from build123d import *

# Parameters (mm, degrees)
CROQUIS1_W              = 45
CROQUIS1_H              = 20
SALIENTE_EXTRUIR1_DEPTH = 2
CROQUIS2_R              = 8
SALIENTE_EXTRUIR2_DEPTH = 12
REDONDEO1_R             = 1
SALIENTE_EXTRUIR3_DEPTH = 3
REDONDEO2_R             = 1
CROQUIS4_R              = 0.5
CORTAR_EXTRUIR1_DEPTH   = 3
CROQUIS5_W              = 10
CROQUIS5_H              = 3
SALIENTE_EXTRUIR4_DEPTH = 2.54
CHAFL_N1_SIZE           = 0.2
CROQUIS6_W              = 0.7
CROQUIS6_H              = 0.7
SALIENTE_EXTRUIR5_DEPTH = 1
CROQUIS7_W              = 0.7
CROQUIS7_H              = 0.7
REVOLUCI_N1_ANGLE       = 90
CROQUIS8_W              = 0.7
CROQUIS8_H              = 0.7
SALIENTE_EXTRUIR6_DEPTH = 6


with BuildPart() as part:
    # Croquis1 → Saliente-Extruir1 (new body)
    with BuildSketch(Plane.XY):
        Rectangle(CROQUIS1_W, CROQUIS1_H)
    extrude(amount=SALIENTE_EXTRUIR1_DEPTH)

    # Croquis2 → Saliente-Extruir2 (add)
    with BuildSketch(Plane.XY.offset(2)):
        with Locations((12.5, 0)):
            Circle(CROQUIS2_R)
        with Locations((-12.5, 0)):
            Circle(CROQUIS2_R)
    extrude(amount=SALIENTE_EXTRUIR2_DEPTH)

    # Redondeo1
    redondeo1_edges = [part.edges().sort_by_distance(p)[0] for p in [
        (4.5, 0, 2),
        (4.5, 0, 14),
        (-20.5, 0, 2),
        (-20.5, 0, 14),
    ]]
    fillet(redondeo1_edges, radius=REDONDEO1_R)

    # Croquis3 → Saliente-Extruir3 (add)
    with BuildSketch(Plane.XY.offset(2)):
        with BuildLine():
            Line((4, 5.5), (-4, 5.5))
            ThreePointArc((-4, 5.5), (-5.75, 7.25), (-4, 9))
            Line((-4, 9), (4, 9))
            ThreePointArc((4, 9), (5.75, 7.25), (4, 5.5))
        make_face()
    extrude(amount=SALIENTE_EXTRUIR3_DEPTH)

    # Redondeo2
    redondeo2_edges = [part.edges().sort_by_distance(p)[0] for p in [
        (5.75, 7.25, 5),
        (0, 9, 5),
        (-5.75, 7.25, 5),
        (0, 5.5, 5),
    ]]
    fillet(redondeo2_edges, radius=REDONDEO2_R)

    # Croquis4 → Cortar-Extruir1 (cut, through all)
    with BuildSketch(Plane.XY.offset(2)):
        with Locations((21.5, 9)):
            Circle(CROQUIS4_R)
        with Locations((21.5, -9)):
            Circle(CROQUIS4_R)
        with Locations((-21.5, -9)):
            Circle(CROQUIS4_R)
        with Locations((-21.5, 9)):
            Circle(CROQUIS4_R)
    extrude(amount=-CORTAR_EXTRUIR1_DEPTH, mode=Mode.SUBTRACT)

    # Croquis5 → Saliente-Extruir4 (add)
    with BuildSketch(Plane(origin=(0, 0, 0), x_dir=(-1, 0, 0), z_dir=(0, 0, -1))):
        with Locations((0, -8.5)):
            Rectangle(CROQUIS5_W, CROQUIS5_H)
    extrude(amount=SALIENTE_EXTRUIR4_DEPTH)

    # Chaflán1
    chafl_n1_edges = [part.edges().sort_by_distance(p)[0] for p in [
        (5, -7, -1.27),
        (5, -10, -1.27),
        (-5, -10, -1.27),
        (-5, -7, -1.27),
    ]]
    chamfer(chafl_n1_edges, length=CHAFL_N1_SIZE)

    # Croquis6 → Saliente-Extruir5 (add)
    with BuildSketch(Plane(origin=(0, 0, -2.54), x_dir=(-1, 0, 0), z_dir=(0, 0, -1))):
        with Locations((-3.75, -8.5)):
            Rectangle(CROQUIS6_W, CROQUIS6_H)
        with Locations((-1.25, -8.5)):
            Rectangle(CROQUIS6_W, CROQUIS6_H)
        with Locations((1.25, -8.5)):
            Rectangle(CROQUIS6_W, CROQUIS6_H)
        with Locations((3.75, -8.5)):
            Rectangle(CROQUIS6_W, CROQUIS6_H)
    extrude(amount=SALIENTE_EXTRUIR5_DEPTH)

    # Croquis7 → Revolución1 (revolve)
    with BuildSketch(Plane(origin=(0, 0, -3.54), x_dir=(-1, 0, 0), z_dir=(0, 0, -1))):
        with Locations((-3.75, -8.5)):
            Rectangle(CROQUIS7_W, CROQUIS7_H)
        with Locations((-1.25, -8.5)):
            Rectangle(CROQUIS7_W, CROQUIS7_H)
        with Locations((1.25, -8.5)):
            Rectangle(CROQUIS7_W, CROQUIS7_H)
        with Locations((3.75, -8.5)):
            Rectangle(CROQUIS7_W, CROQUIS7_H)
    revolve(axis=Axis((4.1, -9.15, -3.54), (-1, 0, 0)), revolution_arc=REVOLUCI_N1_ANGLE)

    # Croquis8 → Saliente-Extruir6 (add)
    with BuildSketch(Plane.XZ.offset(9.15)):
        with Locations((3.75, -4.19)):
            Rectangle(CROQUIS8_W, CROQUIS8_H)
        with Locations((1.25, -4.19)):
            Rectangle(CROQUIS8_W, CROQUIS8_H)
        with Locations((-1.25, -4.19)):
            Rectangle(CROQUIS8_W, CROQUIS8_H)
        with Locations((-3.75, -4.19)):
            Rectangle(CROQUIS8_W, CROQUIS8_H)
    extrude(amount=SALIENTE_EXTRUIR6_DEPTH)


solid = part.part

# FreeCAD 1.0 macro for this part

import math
import FreeCAD as App
import Part
import Sketcher


def edges_at(feature, points):
    """Names of the edges that pass closest to the given points."""
    edges = feature.Shape.Edges
    near = lambda p: min(range(len(edges)), key=lambda i: edges[i].distToShape(Part.Vertex(*p))[0])
    return sorted({f"Edge{near(p) + 1}" for p in points})

doc = App.newDocument("Part")
body = doc.addObject("PartDesign::Body", "Body")

# Sketch on XY plane
sketch1 = doc.addObject("Sketcher::SketchObject", "Sketch")
body.addObject(sketch1)
sketch1.AttachmentSupport = (doc.XY_Plane, [""])
sketch1.MapMode = "FlatFace"
sketch1.addGeometry([
    Part.LineSegment(App.Vector(-22.5, 10, 0), App.Vector(-22.5, -10, 0)),
    Part.LineSegment(App.Vector(-22.5, -10, 0), App.Vector(22.5, -10, 0)),
    Part.LineSegment(App.Vector(22.5, -10, 0), App.Vector(22.5, 10, 0)),
    Part.LineSegment(App.Vector(22.5, 10, 0), App.Vector(-22.5, 10, 0)),
], False)
sketch1.addConstraint([
    Sketcher.Constraint("Coincident", 0, 2, 1, 1),
    Sketcher.Constraint("Coincident", 1, 2, 2, 1),
    Sketcher.Constraint("Coincident", 2, 2, 3, 1),
    Sketcher.Constraint("Coincident", 3, 2, 0, 1),
    Sketcher.Constraint("Vertical", 0),
    Sketcher.Constraint("Horizontal", 1),
    Sketcher.Constraint("Vertical", 2),
    Sketcher.Constraint("Horizontal", 3),
    Sketcher.Constraint("Symmetric", 0, 2, 2, 2, -1, 1),
    Sketcher.Constraint("DistanceX", 1, 1, 1, 2, 45.0),
    Sketcher.Constraint("DistanceY", 0, 2, 0, 1, 20.0),
])
pad1 = doc.addObject("PartDesign::Pad", "Pad")
body.addObject(pad1)
pad1.Profile = sketch1
pad1.Length = 2

# Sketch on XY plane
sketch2 = doc.addObject("Sketcher::SketchObject", "Sketch001")
body.addObject(sketch2)
sketch2.AttachmentSupport = (doc.XY_Plane, [""])
sketch2.MapMode = "FlatFace"
sketch2.AttachmentOffset = App.Placement(App.Vector(0, 0, 2), App.Rotation())
sketch2.addGeometry([
    Part.Circle(App.Vector(12.5, 0, 0), App.Vector(0, 0, 1), 8),
    Part.Circle(App.Vector(-12.5, 0, 0), App.Vector(0, 0, 1), 8),
], False)
sketch2.addConstraint([
    Sketcher.Constraint("Equal", 0, 1),
    Sketcher.Constraint("Symmetric", 0, 3, 1, 3, -1, 1),
    Sketcher.Constraint("PointOnObject", 0, 3, -1),
    Sketcher.Constraint("Diameter", 0, 16.0),
    Sketcher.Constraint("DistanceX", 1, 3, 0, 3, 25.0),
])
pad2 = doc.addObject("PartDesign::Pad", "Pad001")
body.addObject(pad2)
pad2.Profile = sketch2
pad2.Length = 12
doc.recompute()

fillet = doc.addObject("PartDesign::Fillet", "Fillet")
body.addObject(fillet)
fillet.Base = (pad2, edges_at(pad2, [
    (4.5, 0, 2),
    (4.5, 0, 14),
    (-20.5, 0, 2),
    (-20.5, 0, 14),
]))
fillet.Radius = 1

# Sketch on XY plane
sketch3 = doc.addObject("Sketcher::SketchObject", "Sketch002")
body.addObject(sketch3)
sketch3.AttachmentSupport = (doc.XY_Plane, [""])
sketch3.MapMode = "FlatFace"
sketch3.AttachmentOffset = App.Placement(App.Vector(0, 0, 2), App.Rotation())
sketch3.addGeometry([
    Part.LineSegment(App.Vector(-4, 5.5, 0), App.Vector(4, 5.5, 0)),
    Part.ArcOfCircle(Part.Circle(App.Vector(4, 7.25, 0), App.Vector(0, 0, 1), 1.75), math.radians(-90), math.radians(90)),
    Part.LineSegment(App.Vector(4, 9, 0), App.Vector(-4, 9, 0)),
    Part.ArcOfCircle(Part.Circle(App.Vector(-4, 7.25, 0), App.Vector(0, 0, 1), 1.75), math.radians(90), math.radians(270)),
], False)
sketch3.addConstraint([
    Sketcher.Constraint("Tangent", 0, 2, 1, 1),
    Sketcher.Constraint("Tangent", 1, 2, 2, 1),
    Sketcher.Constraint("Tangent", 2, 2, 3, 1),
    Sketcher.Constraint("Tangent", 3, 2, 0, 1),
    Sketcher.Constraint("Horizontal", 0),
    Sketcher.Constraint("Horizontal", 2),
    Sketcher.Constraint("DistanceX", 0, 1, 0, 2, 8.0),
    Sketcher.Constraint("Radius", 1, 1.75),
    Sketcher.Constraint("DistanceX", -1, 1, 1, 3, 4.0),
    Sketcher.Constraint("DistanceY", -1, 1, 1, 2, 9.0),
])
pad3 = doc.addObject("PartDesign::Pad", "Pad002")
body.addObject(pad3)
pad3.Profile = sketch3
pad3.Length = 3
doc.recompute()

fillet2 = doc.addObject("PartDesign::Fillet", "Fillet001")
body.addObject(fillet2)
fillet2.Base = (pad3, edges_at(pad3, [
    (5.75, 7.25, 5),
    (0, 9, 5),
    (-5.75, 7.25, 5),
    (0, 5.5, 5),
]))
fillet2.Radius = 1

# Sketch on XY plane
sketch4 = doc.addObject("Sketcher::SketchObject", "Sketch003")
body.addObject(sketch4)
sketch4.AttachmentSupport = (doc.XY_Plane, [""])
sketch4.MapMode = "FlatFace"
sketch4.AttachmentOffset = App.Placement(App.Vector(0, 0, 2), App.Rotation())
sketch4.addGeometry([
    Part.Circle(App.Vector(21.5, 9, 0), App.Vector(0, 0, 1), 0.5),
    Part.Circle(App.Vector(21.5, -9, 0), App.Vector(0, 0, 1), 0.5),
    Part.Circle(App.Vector(-21.5, -9, 0), App.Vector(0, 0, 1), 0.5),
    Part.Circle(App.Vector(-21.5, 9, 0), App.Vector(0, 0, 1), 0.5),
], False)
sketch4.addConstraint([
    Sketcher.Constraint("Equal", 0, 1),
    Sketcher.Constraint("Equal", 1, 2),
    Sketcher.Constraint("Equal", 2, 3),
    Sketcher.Constraint("Symmetric", 0, 3, 2, 3, -1, 1),
    Sketcher.Constraint("Symmetric", 1, 3, 3, 3, -1, 1),
    Sketcher.Constraint("Symmetric", 1, 3, 2, 3, -2),
    Sketcher.Constraint("Diameter", 0, 1.0),
    Sketcher.Constraint("DistanceY", -1, 1, 0, 3, 9.0),
    Sketcher.Constraint("DistanceX", 2, 3, 1, 3, 43.0),
])
pocket1 = doc.addObject("PartDesign::Pocket", "Pocket")
body.addObject(pocket1)
pocket1.Profile = sketch4
pocket1.Type = "ThroughAll"

# Sketch on XY plane
sketch5 = doc.addObject("Sketcher::SketchObject", "Sketch004")
body.addObject(sketch5)
sketch5.AttachmentSupport = (doc.XY_Plane, [""])
sketch5.MapMode = "FlatFace"
sketch5.addGeometry([
    Part.LineSegment(App.Vector(5, -7, 0), App.Vector(5, -10, 0)),
    Part.LineSegment(App.Vector(5, -10, 0), App.Vector(-5, -10, 0)),
    Part.LineSegment(App.Vector(-5, -10, 0), App.Vector(-5, -7, 0)),
    Part.LineSegment(App.Vector(-5, -7, 0), App.Vector(5, -7, 0)),
], False)
sketch5.addConstraint([
    Sketcher.Constraint("Coincident", 0, 2, 1, 1),
    Sketcher.Constraint("Coincident", 1, 2, 2, 1),
    Sketcher.Constraint("Coincident", 2, 2, 3, 1),
    Sketcher.Constraint("Coincident", 3, 2, 0, 1),
    Sketcher.Constraint("Vertical", 0),
    Sketcher.Constraint("Horizontal", 1),
    Sketcher.Constraint("Vertical", 2),
    Sketcher.Constraint("Horizontal", 3),
    Sketcher.Constraint("DistanceX", 1, 2, 1, 1, 10.0),
    Sketcher.Constraint("DistanceY", 0, 2, 0, 1, 3.0),
    Sketcher.Constraint("DistanceX", -1, 1, 0, 2, 5.0),
    Sketcher.Constraint("DistanceY", 0, 2, -1, 1, 10.0),
])
pad4 = doc.addObject("PartDesign::Pad", "Pad003")
body.addObject(pad4)
pad4.Profile = sketch5
pad4.Length = 2.54
pad4.Reversed = True
doc.recompute()

chamfer = doc.addObject("PartDesign::Chamfer", "Chamfer")
body.addObject(chamfer)
chamfer.Base = (pad4, edges_at(pad4, [
    (5, -7, -1.27),
    (5, -10, -1.27),
    (-5, -10, -1.27),
    (-5, -7, -1.27),
]))
chamfer.Size = 0.2

# Sketch on XY plane
sketch6 = doc.addObject("Sketcher::SketchObject", "Sketch005")
body.addObject(sketch6)
sketch6.AttachmentSupport = (doc.XY_Plane, [""])
sketch6.MapMode = "FlatFace"
sketch6.AttachmentOffset = App.Placement(App.Vector(0, 0, -2.54), App.Rotation())
sketch6.addGeometry([
    Part.LineSegment(App.Vector(4.1, -8.15, 0), App.Vector(4.1, -8.85, 0)),  # 0
    Part.LineSegment(App.Vector(4.1, -8.85, 0), App.Vector(3.4, -8.85, 0)),  # 1
    Part.LineSegment(App.Vector(3.4, -8.85, 0), App.Vector(3.4, -8.15, 0)),  # 2
    Part.LineSegment(App.Vector(3.4, -8.15, 0), App.Vector(4.1, -8.15, 0)),  # 3
    Part.LineSegment(App.Vector(1.6, -8.15, 0), App.Vector(1.6, -8.85, 0)),  # 4
    Part.LineSegment(App.Vector(1.6, -8.85, 0), App.Vector(0.9, -8.85, 0)),  # 5
    Part.LineSegment(App.Vector(0.9, -8.85, 0), App.Vector(0.9, -8.15, 0)),  # 6
    Part.LineSegment(App.Vector(0.9, -8.15, 0), App.Vector(1.6, -8.15, 0)),  # 7
    Part.LineSegment(App.Vector(-0.9, -8.15, 0), App.Vector(-0.9, -8.85, 0)),  # 8
    Part.LineSegment(App.Vector(-0.9, -8.85, 0), App.Vector(-1.6, -8.85, 0)),  # 9
    Part.LineSegment(App.Vector(-1.6, -8.85, 0), App.Vector(-1.6, -8.15, 0)),  # 10
    Part.LineSegment(App.Vector(-1.6, -8.15, 0), App.Vector(-0.9, -8.15, 0)),  # 11
    Part.LineSegment(App.Vector(-3.4, -8.15, 0), App.Vector(-3.4, -8.85, 0)),  # 12
    Part.LineSegment(App.Vector(-3.4, -8.85, 0), App.Vector(-4.1, -8.85, 0)),  # 13
    Part.LineSegment(App.Vector(-4.1, -8.85, 0), App.Vector(-4.1, -8.15, 0)),  # 14
    Part.LineSegment(App.Vector(-4.1, -8.15, 0), App.Vector(-3.4, -8.15, 0)),  # 15
], False)
sketch6.addConstraint([
    Sketcher.Constraint("Coincident", 0, 2, 1, 1),
    Sketcher.Constraint("Coincident", 1, 2, 2, 1),
    Sketcher.Constraint("Coincident", 2, 2, 3, 1),
    Sketcher.Constraint("Coincident", 3, 2, 0, 1),
    Sketcher.Constraint("Coincident", 4, 2, 5, 1),
    Sketcher.Constraint("Coincident", 5, 2, 6, 1),
    Sketcher.Constraint("Coincident", 6, 2, 7, 1),
    Sketcher.Constraint("Coincident", 7, 2, 4, 1),
    Sketcher.Constraint("Coincident", 8, 2, 9, 1),
    Sketcher.Constraint("Coincident", 9, 2, 10, 1),
    Sketcher.Constraint("Coincident", 10, 2, 11, 1),
    Sketcher.Constraint("Coincident", 11, 2, 8, 1),
    Sketcher.Constraint("Coincident", 12, 2, 13, 1),
    Sketcher.Constraint("Coincident", 13, 2, 14, 1),
    Sketcher.Constraint("Coincident", 14, 2, 15, 1),
    Sketcher.Constraint("Coincident", 15, 2, 12, 1),
    Sketcher.Constraint("Vertical", 0),
    Sketcher.Constraint("Horizontal", 1),
    Sketcher.Constraint("Vertical", 2),
    Sketcher.Constraint("Horizontal", 3),
    Sketcher.Constraint("Vertical", 4),
    Sketcher.Constraint("Horizontal", 5),
    Sketcher.Constraint("Vertical", 6),
    Sketcher.Constraint("Horizontal", 7),
    Sketcher.Constraint("Vertical", 8),
    Sketcher.Constraint("Horizontal", 9),
    Sketcher.Constraint("Vertical", 10),
    Sketcher.Constraint("Horizontal", 11),
    Sketcher.Constraint("Vertical", 12),
    Sketcher.Constraint("Horizontal", 13),
    Sketcher.Constraint("Vertical", 14),
    Sketcher.Constraint("Horizontal", 15),
    Sketcher.Constraint("Symmetric", 5, 2, 8, 2, -2),
    Sketcher.Constraint("Symmetric", 7, 2, 10, 2, -2),
    Sketcher.Constraint("Symmetric", 1, 2, 12, 2, -2),
    Sketcher.Constraint("Symmetric", 3, 2, 14, 2, -2),
    Sketcher.Constraint("Horizontal", 1, 2, 4, 2),
    Sketcher.Constraint("Horizontal", 3, 2, 6, 2),
    Sketcher.Constraint("Equal", 3, 5),
    Sketcher.Constraint("Equal", 15, 0),
    Sketcher.Constraint("DistanceX", 1, 2, 1, 1, 0.7),
    Sketcher.Constraint("DistanceX", -1, 1, 0, 2, 4.1),
    Sketcher.Constraint("DistanceX", -1, 1, 4, 2, 1.6),
    Sketcher.Constraint("DistanceY", 0, 2, -1, 1, 8.85),
])
pad5 = doc.addObject("PartDesign::Pad", "Pad004")
body.addObject(pad5)
pad5.Profile = sketch6
pad5.Length = 1
pad5.Reversed = True

# Sketch on XY plane
sketch7 = doc.addObject("Sketcher::SketchObject", "Sketch006")
body.addObject(sketch7)
sketch7.AttachmentSupport = (doc.XY_Plane, [""])
sketch7.MapMode = "FlatFace"
sketch7.AttachmentOffset = App.Placement(App.Vector(0, 0, -3.54), App.Rotation())
sketch7.addGeometry([
    Part.LineSegment(App.Vector(4.1, -8.15, 0), App.Vector(4.1, -8.85, 0)),  # 0
    Part.LineSegment(App.Vector(4.1, -8.85, 0), App.Vector(3.4, -8.85, 0)),  # 1
    Part.LineSegment(App.Vector(3.4, -8.85, 0), App.Vector(3.4, -8.15, 0)),  # 2
    Part.LineSegment(App.Vector(3.4, -8.15, 0), App.Vector(4.1, -8.15, 0)),  # 3
    Part.LineSegment(App.Vector(1.6, -8.15, 0), App.Vector(1.6, -8.85, 0)),  # 4
    Part.LineSegment(App.Vector(1.6, -8.85, 0), App.Vector(0.9, -8.85, 0)),  # 5
    Part.LineSegment(App.Vector(0.9, -8.85, 0), App.Vector(0.9, -8.15, 0)),  # 6
    Part.LineSegment(App.Vector(0.9, -8.15, 0), App.Vector(1.6, -8.15, 0)),  # 7
    Part.LineSegment(App.Vector(-0.9, -8.15, 0), App.Vector(-0.9, -8.85, 0)),  # 8
    Part.LineSegment(App.Vector(-0.9, -8.85, 0), App.Vector(-1.6, -8.85, 0)),  # 9
    Part.LineSegment(App.Vector(-1.6, -8.85, 0), App.Vector(-1.6, -8.15, 0)),  # 10
    Part.LineSegment(App.Vector(-1.6, -8.15, 0), App.Vector(-0.9, -8.15, 0)),  # 11
    Part.LineSegment(App.Vector(-3.4, -8.15, 0), App.Vector(-3.4, -8.85, 0)),  # 12
    Part.LineSegment(App.Vector(-3.4, -8.85, 0), App.Vector(-4.1, -8.85, 0)),  # 13
    Part.LineSegment(App.Vector(-4.1, -8.85, 0), App.Vector(-4.1, -8.15, 0)),  # 14
    Part.LineSegment(App.Vector(-4.1, -8.15, 0), App.Vector(-3.4, -8.15, 0)),  # 15
], False)
sketch7.addGeometry(Part.LineSegment(App.Vector(4.1, -9.15, 0), App.Vector(-4.1, -9.15, 0)), True)  # axis
sketch7.addConstraint([
    Sketcher.Constraint("Coincident", 0, 2, 1, 1),
    Sketcher.Constraint("Coincident", 1, 2, 2, 1),
    Sketcher.Constraint("Coincident", 2, 2, 3, 1),
    Sketcher.Constraint("Coincident", 3, 2, 0, 1),
    Sketcher.Constraint("Coincident", 4, 2, 5, 1),
    Sketcher.Constraint("Coincident", 5, 2, 6, 1),
    Sketcher.Constraint("Coincident", 6, 2, 7, 1),
    Sketcher.Constraint("Coincident", 7, 2, 4, 1),
    Sketcher.Constraint("Coincident", 8, 2, 9, 1),
    Sketcher.Constraint("Coincident", 9, 2, 10, 1),
    Sketcher.Constraint("Coincident", 10, 2, 11, 1),
    Sketcher.Constraint("Coincident", 11, 2, 8, 1),
    Sketcher.Constraint("Coincident", 12, 2, 13, 1),
    Sketcher.Constraint("Coincident", 13, 2, 14, 1),
    Sketcher.Constraint("Coincident", 14, 2, 15, 1),
    Sketcher.Constraint("Coincident", 15, 2, 12, 1),
    Sketcher.Constraint("Vertical", 0),
    Sketcher.Constraint("Horizontal", 1),
    Sketcher.Constraint("Vertical", 2),
    Sketcher.Constraint("Horizontal", 3),
    Sketcher.Constraint("Vertical", 4),
    Sketcher.Constraint("Horizontal", 5),
    Sketcher.Constraint("Vertical", 6),
    Sketcher.Constraint("Horizontal", 7),
    Sketcher.Constraint("Vertical", 8),
    Sketcher.Constraint("Horizontal", 9),
    Sketcher.Constraint("Vertical", 10),
    Sketcher.Constraint("Horizontal", 11),
    Sketcher.Constraint("Vertical", 12),
    Sketcher.Constraint("Horizontal", 13),
    Sketcher.Constraint("Vertical", 14),
    Sketcher.Constraint("Horizontal", 15),
    Sketcher.Constraint("Horizontal", 16),
    Sketcher.Constraint("Symmetric", 5, 2, 8, 2, -2),
    Sketcher.Constraint("Symmetric", 7, 2, 10, 2, -2),
    Sketcher.Constraint("Symmetric", 1, 2, 12, 2, -2),
    Sketcher.Constraint("Symmetric", 3, 2, 14, 2, -2),
    Sketcher.Constraint("Horizontal", 1, 2, 4, 2),
    Sketcher.Constraint("Horizontal", 3, 2, 6, 2),
    Sketcher.Constraint("Vertical", 3, 2, 16, 1),
    Sketcher.Constraint("Vertical", 14, 2, 16, 2),
    Sketcher.Constraint("Equal", 3, 5),
    Sketcher.Constraint("Equal", 15, 0),
    Sketcher.Constraint("DistanceX", 1, 2, 1, 1, 0.7),
    Sketcher.Constraint("DistanceX", 16, 2, 16, 1, 8.2),
    Sketcher.Constraint("DistanceY", 16, 1, 3, 2, 1.0),
    Sketcher.Constraint("DistanceX", -1, 1, 4, 2, 1.6),
    Sketcher.Constraint("DistanceY", 0, 2, -1, 1, 8.85),
])
revolution = doc.addObject("PartDesign::Revolution", "Revolution")
body.addObject(revolution)
revolution.Profile = sketch7
revolution.ReferenceAxis = (sketch7, ["Axis0"])
revolution.Angle = 90

# Sketch on XZ plane
sketch8 = doc.addObject("Sketcher::SketchObject", "Sketch007")
body.addObject(sketch8)
sketch8.AttachmentSupport = (doc.XZ_Plane, [""])
sketch8.MapMode = "FlatFace"
sketch8.AttachmentOffset = App.Placement(App.Vector(0, 0, 9.15), App.Rotation())
sketch8.addGeometry([
    Part.LineSegment(App.Vector(3.4, -3.84, 0), App.Vector(3.4, -4.54, 0)),  # 0
    Part.LineSegment(App.Vector(3.4, -4.54, 0), App.Vector(4.1, -4.54, 0)),  # 1
    Part.LineSegment(App.Vector(4.1, -4.54, 0), App.Vector(4.1, -3.84, 0)),  # 2
    Part.LineSegment(App.Vector(4.1, -3.84, 0), App.Vector(3.4, -3.84, 0)),  # 3
    Part.LineSegment(App.Vector(0.9, -3.84, 0), App.Vector(0.9, -4.54, 0)),  # 4
    Part.LineSegment(App.Vector(0.9, -4.54, 0), App.Vector(1.6, -4.54, 0)),  # 5
    Part.LineSegment(App.Vector(1.6, -4.54, 0), App.Vector(1.6, -3.84, 0)),  # 6
    Part.LineSegment(App.Vector(1.6, -3.84, 0), App.Vector(0.9, -3.84, 0)),  # 7
    Part.LineSegment(App.Vector(-1.6, -3.84, 0), App.Vector(-1.6, -4.54, 0)),  # 8
    Part.LineSegment(App.Vector(-1.6, -4.54, 0), App.Vector(-0.9, -4.54, 0)),  # 9
    Part.LineSegment(App.Vector(-0.9, -4.54, 0), App.Vector(-0.9, -3.84, 0)),  # 10
    Part.LineSegment(App.Vector(-0.9, -3.84, 0), App.Vector(-1.6, -3.84, 0)),  # 11
    Part.LineSegment(App.Vector(-4.1, -3.84, 0), App.Vector(-4.1, -4.54, 0)),  # 12
    Part.LineSegment(App.Vector(-4.1, -4.54, 0), App.Vector(-3.4, -4.54, 0)),  # 13
    Part.LineSegment(App.Vector(-3.4, -4.54, 0), App.Vector(-3.4, -3.84, 0)),  # 14
    Part.LineSegment(App.Vector(-3.4, -3.84, 0), App.Vector(-4.1, -3.84, 0)),  # 15
], False)
sketch8.addConstraint([
    Sketcher.Constraint("Coincident", 0, 2, 1, 1),
    Sketcher.Constraint("Coincident", 1, 2, 2, 1),
    Sketcher.Constraint("Coincident", 2, 2, 3, 1),
    Sketcher.Constraint("Coincident", 3, 2, 0, 1),
    Sketcher.Constraint("Coincident", 4, 2, 5, 1),
    Sketcher.Constraint("Coincident", 5, 2, 6, 1),
    Sketcher.Constraint("Coincident", 6, 2, 7, 1),
    Sketcher.Constraint("Coincident", 7, 2, 4, 1),
    Sketcher.Constraint("Coincident", 8, 2, 9, 1),
    Sketcher.Constraint("Coincident", 9, 2, 10, 1),
    Sketcher.Constraint("Coincident", 10, 2, 11, 1),
    Sketcher.Constraint("Coincident", 11, 2, 8, 1),
    Sketcher.Constraint("Coincident", 12, 2, 13, 1),
    Sketcher.Constraint("Coincident", 13, 2, 14, 1),
    Sketcher.Constraint("Coincident", 14, 2, 15, 1),
    Sketcher.Constraint("Coincident", 15, 2, 12, 1),
    Sketcher.Constraint("Vertical", 0),
    Sketcher.Constraint("Horizontal", 1),
    Sketcher.Constraint("Vertical", 2),
    Sketcher.Constraint("Horizontal", 3),
    Sketcher.Constraint("Vertical", 4),
    Sketcher.Constraint("Horizontal", 5),
    Sketcher.Constraint("Vertical", 6),
    Sketcher.Constraint("Horizontal", 7),
    Sketcher.Constraint("Vertical", 8),
    Sketcher.Constraint("Horizontal", 9),
    Sketcher.Constraint("Vertical", 10),
    Sketcher.Constraint("Horizontal", 11),
    Sketcher.Constraint("Vertical", 12),
    Sketcher.Constraint("Horizontal", 13),
    Sketcher.Constraint("Vertical", 14),
    Sketcher.Constraint("Horizontal", 15),
    Sketcher.Constraint("Symmetric", 5, 2, 8, 2, -2),
    Sketcher.Constraint("Symmetric", 7, 2, 10, 2, -2),
    Sketcher.Constraint("Symmetric", 1, 2, 12, 2, -2),
    Sketcher.Constraint("Symmetric", 3, 2, 14, 2, -2),
    Sketcher.Constraint("Horizontal", 1, 2, 4, 2),
    Sketcher.Constraint("Horizontal", 3, 2, 6, 2),
    Sketcher.Constraint("Equal", 3, 5),
    Sketcher.Constraint("Equal", 15, 0),
    Sketcher.Constraint("DistanceX", 1, 1, 1, 2, 0.7),
    Sketcher.Constraint("DistanceX", 8, 2, 0, 2, 5.0),
    Sketcher.Constraint("DistanceX", -1, 1, 0, 2, 3.4),
    Sketcher.Constraint("DistanceY", 0, 2, -1, 1, 4.54),
])
pad6 = doc.addObject("PartDesign::Pad", "Pad005")
body.addObject(pad6)
pad6.Profile = sketch8
pad6.Length = 6

doc.recompute()
